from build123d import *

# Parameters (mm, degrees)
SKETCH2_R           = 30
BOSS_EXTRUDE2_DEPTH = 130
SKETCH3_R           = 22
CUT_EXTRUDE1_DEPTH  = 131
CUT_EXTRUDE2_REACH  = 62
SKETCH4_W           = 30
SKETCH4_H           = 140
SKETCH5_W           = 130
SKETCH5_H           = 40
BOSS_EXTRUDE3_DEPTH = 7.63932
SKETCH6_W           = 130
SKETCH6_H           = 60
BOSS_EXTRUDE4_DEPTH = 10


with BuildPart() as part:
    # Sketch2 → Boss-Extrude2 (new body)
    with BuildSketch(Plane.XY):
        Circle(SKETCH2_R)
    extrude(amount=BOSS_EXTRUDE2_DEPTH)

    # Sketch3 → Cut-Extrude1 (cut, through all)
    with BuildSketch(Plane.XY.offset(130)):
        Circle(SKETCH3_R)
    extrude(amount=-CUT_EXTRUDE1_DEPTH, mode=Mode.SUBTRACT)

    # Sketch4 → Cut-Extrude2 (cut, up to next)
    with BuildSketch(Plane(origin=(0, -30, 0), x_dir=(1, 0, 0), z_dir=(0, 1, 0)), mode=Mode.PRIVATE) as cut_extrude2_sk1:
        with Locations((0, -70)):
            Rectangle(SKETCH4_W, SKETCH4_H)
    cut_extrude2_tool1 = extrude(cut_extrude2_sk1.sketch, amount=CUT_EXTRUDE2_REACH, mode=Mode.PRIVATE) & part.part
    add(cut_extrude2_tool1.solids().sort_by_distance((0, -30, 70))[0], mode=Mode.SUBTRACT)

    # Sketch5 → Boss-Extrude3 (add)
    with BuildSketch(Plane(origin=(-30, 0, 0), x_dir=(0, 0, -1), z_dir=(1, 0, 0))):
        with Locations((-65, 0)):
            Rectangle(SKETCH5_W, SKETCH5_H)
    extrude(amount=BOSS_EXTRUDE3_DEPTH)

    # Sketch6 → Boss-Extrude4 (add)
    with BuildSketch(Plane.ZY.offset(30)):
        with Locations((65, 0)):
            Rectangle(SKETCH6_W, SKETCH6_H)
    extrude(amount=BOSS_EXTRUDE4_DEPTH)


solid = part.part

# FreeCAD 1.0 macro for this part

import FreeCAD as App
import Part
import Sketcher

V = App.Vector

doc = App.newDocument("Part")
params = doc.addObject("Spreadsheet::Sheet", "Params")
for row, (alias, value) in enumerate([
    ("sketch1_diameter", "60 mm"),
    ("pad1_length", "130 mm"),
    ("sketch2_diameter", "44 mm"),
    ("sketch3_width", "30 mm"),
    ("sketch3_height", "140 mm"),
    ("pocket2_length", "13.906523 mm"),
    ("sketch4_width", "40 mm"),
    ("sketch4_height", "130 mm"),
    ("pad2_length", "7.63932 mm"),
    ("sketch5_width", "60 mm"),
    ("sketch5_height", "130 mm"),
    ("pad3_length", "10 mm"),
], start=1):
    params.set(f"A{row}", alias)
    params.set(f"B{row}", "=" + value)
    params.setAlias(f"B{row}", alias)

body = doc.addObject("PartDesign::Body", "Body")

# Sketch on XY plane
sketch1 = doc.addObject("Sketcher::SketchObject", "Sketch")
body.addObject(sketch1)
sketch1.AttachmentSupport = (doc.XY_Plane, [""])
sketch1.MapMode = "FlatFace"
sketch1.addGeometry(Part.Circle(V(0, 0, 0), V(0, 0, 1), 30), False)
sketch1.addConstraint([
    Sketcher.Constraint("Coincident", 0, 3, -1, 1),
    Sketcher.Constraint("Diameter", 0, 60.0),
])
sketch1.setExpression("Constraints[1]", "Params.sketch1_diameter")
pad1 = doc.addObject("PartDesign::Pad", "Pad")
body.addObject(pad1)
pad1.Profile = sketch1
pad1.setExpression("Length", "Params.pad1_length")

# Sketch on XY plane
sketch2 = doc.addObject("Sketcher::SketchObject", "Sketch001")
body.addObject(sketch2)
sketch2.AttachmentSupport = (doc.XY_Plane, [""])
sketch2.MapMode = "FlatFace"
sketch2.AttachmentOffset = App.Placement(V(0, 0, 130), App.Rotation())
sketch2.addGeometry(Part.Circle(V(0, 0, 0), V(0, 0, 1), 22), False)
sketch2.addConstraint([
    Sketcher.Constraint("Coincident", 0, 3, -1, 1),
    Sketcher.Constraint("Diameter", 0, 44.0),
])
sketch2.setExpression("Constraints[1]", "Params.sketch2_diameter")
pocket1 = doc.addObject("PartDesign::Pocket", "Pocket")
body.addObject(pocket1)
pocket1.Profile = sketch2
pocket1.Type = "ThroughAll"

# Sketch on XZ plane
sketch3 = doc.addObject("Sketcher::SketchObject", "Sketch002")
body.addObject(sketch3)
sketch3.AttachmentSupport = (doc.XZ_Plane, [""])
sketch3.MapMode = "FlatFace"
sketch3.AttachmentOffset = App.Placement(V(0, 0, 30), App.Rotation())
sketch3.addGeometry([
    Part.LineSegment(V(-15, 0, 0), V(-15, 140, 0)),
    Part.LineSegment(V(-15, 140, 0), V(15, 140, 0)),
    Part.LineSegment(V(15, 140, 0), V(15, 0, 0)),
    Part.LineSegment(V(15, 0, 0), V(-15, 0, 0)),
], False)
sketch3.addConstraint([
    Sketcher.Constraint("Coincident", 0, 2, 1, 1),
    Sketcher.Constraint("Coincident", 1, 2, 2, 1),
    Sketcher.Constraint("Coincident", 2, 2, 3, 1),
    Sketcher.Constraint("Coincident", 3, 2, 0, 1),
    Sketcher.Constraint("Vertical", 0),
    Sketcher.Constraint("Horizontal", 1),
    Sketcher.Constraint("Vertical", 2),
    Sketcher.Constraint("Horizontal", 3),
    Sketcher.Constraint("Symmetric", 2, 2, 3, 2, -1, 1),
    Sketcher.Constraint("DistanceX", 1, 1, 1, 2, 30.0),
    Sketcher.Constraint("DistanceY", 0, 1, 0, 2, 140.0),
])
sketch3.setExpression("Constraints[9]", "Params.sketch3_width")
sketch3.setExpression("Constraints[10]", "Params.sketch3_height")
pocket2 = doc.addObject("PartDesign::Pocket", "Pocket001")
body.addObject(pocket2)
pocket2.Profile = sketch3
pocket2.setExpression("Length", "Params.pocket2_length")

# Sketch on YZ plane
sketch4 = doc.addObject("Sketcher::SketchObject", "Sketch003")
body.addObject(sketch4)
sketch4.AttachmentSupport = (doc.YZ_Plane, [""])
sketch4.MapMode = "FlatFace"
sketch4.AttachmentOffset = App.Placement(V(0, 0, -30), App.Rotation())
sketch4.addGeometry([
    Part.LineSegment(V(20, 130, 0), V(-20, 130, 0)),
    Part.LineSegment(V(-20, 130, 0), V(-20, 0, 0)),
    Part.LineSegment(V(-20, 0, 0), V(20, 0, 0)),
    Part.LineSegment(V(20, 0, 0), V(20, 130, 0)),
], False)
sketch4.addConstraint([
    Sketcher.Constraint("Coincident", 0, 2, 1, 1),
    Sketcher.Constraint("Coincident", 1, 2, 2, 1),
    Sketcher.Constraint("Coincident", 2, 2, 3, 1),
    Sketcher.Constraint("Coincident", 3, 2, 0, 1),
    Sketcher.Constraint("Horizontal", 0),
    Sketcher.Constraint("Vertical", 1),
    Sketcher.Constraint("Horizontal", 2),
    Sketcher.Constraint("Vertical", 3),
    Sketcher.Constraint("Symmetric", 1, 2, 2, 2, -1, 1),
    Sketcher.Constraint("DistanceX", 0, 2, 0, 1, 40.0),
    Sketcher.Constraint("DistanceY", 1, 2, 1, 1, 130.0),
])
sketch4.setExpression("Constraints[9]", "Params.sketch4_width")
sketch4.setExpression("Constraints[10]", "Params.sketch4_height")
pad2 = doc.addObject("PartDesign::Pad", "Pad001")
body.addObject(pad2)
pad2.Profile = sketch4
pad2.setExpression("Length", "Params.pad2_length")

# Sketch on YZ plane
sketch5 = doc.addObject("Sketcher::SketchObject", "Sketch004")
body.addObject(sketch5)
sketch5.AttachmentSupport = (doc.YZ_Plane, [""])
sketch5.MapMode = "FlatFace"
sketch5.AttachmentOffset = App.Placement(V(0, 0, -30), App.Rotation())
sketch5.addGeometry([
    Part.LineSegment(V(30, 0, 0), V(-30, 0, 0)),
    Part.LineSegment(V(-30, 0, 0), V(-30, 130, 0)),
    Part.LineSegment(V(-30, 130, 0), V(30, 130, 0)),
    Part.LineSegment(V(30, 130, 0), V(30, 0, 0)),
], False)
sketch5.addConstraint([
    Sketcher.Constraint("Coincident", 0, 2, 1, 1),
    Sketcher.Constraint("Coincident", 1, 2, 2, 1),
    Sketcher.Constraint("Coincident", 2, 2, 3, 1),
    Sketcher.Constraint("Coincident", 3, 2, 0, 1),
    Sketcher.Constraint("Horizontal", 0),
    Sketcher.Constraint("Vertical", 1),
    Sketcher.Constraint("Horizontal", 2),
    Sketcher.Constraint("Vertical", 3),
    Sketcher.Constraint("Symmetric", 0, 2, 3, 2, -1, 1),
    Sketcher.Constraint("DistanceX", 0, 2, 0, 1, 60.0),
    Sketcher.Constraint("DistanceY", 1, 1, 1, 2, 130.0),
])
sketch5.setExpression("Constraints[9]", "Params.sketch5_width")
sketch5.setExpression("Constraints[10]", "Params.sketch5_height")
pad3 = doc.addObject("PartDesign::Pad", "Pad002")
body.addObject(pad3)
pad3.Profile = sketch5
pad3.setExpression("Length", "Params.pad3_length")
pad3.Reversed = True

doc.recompute()
